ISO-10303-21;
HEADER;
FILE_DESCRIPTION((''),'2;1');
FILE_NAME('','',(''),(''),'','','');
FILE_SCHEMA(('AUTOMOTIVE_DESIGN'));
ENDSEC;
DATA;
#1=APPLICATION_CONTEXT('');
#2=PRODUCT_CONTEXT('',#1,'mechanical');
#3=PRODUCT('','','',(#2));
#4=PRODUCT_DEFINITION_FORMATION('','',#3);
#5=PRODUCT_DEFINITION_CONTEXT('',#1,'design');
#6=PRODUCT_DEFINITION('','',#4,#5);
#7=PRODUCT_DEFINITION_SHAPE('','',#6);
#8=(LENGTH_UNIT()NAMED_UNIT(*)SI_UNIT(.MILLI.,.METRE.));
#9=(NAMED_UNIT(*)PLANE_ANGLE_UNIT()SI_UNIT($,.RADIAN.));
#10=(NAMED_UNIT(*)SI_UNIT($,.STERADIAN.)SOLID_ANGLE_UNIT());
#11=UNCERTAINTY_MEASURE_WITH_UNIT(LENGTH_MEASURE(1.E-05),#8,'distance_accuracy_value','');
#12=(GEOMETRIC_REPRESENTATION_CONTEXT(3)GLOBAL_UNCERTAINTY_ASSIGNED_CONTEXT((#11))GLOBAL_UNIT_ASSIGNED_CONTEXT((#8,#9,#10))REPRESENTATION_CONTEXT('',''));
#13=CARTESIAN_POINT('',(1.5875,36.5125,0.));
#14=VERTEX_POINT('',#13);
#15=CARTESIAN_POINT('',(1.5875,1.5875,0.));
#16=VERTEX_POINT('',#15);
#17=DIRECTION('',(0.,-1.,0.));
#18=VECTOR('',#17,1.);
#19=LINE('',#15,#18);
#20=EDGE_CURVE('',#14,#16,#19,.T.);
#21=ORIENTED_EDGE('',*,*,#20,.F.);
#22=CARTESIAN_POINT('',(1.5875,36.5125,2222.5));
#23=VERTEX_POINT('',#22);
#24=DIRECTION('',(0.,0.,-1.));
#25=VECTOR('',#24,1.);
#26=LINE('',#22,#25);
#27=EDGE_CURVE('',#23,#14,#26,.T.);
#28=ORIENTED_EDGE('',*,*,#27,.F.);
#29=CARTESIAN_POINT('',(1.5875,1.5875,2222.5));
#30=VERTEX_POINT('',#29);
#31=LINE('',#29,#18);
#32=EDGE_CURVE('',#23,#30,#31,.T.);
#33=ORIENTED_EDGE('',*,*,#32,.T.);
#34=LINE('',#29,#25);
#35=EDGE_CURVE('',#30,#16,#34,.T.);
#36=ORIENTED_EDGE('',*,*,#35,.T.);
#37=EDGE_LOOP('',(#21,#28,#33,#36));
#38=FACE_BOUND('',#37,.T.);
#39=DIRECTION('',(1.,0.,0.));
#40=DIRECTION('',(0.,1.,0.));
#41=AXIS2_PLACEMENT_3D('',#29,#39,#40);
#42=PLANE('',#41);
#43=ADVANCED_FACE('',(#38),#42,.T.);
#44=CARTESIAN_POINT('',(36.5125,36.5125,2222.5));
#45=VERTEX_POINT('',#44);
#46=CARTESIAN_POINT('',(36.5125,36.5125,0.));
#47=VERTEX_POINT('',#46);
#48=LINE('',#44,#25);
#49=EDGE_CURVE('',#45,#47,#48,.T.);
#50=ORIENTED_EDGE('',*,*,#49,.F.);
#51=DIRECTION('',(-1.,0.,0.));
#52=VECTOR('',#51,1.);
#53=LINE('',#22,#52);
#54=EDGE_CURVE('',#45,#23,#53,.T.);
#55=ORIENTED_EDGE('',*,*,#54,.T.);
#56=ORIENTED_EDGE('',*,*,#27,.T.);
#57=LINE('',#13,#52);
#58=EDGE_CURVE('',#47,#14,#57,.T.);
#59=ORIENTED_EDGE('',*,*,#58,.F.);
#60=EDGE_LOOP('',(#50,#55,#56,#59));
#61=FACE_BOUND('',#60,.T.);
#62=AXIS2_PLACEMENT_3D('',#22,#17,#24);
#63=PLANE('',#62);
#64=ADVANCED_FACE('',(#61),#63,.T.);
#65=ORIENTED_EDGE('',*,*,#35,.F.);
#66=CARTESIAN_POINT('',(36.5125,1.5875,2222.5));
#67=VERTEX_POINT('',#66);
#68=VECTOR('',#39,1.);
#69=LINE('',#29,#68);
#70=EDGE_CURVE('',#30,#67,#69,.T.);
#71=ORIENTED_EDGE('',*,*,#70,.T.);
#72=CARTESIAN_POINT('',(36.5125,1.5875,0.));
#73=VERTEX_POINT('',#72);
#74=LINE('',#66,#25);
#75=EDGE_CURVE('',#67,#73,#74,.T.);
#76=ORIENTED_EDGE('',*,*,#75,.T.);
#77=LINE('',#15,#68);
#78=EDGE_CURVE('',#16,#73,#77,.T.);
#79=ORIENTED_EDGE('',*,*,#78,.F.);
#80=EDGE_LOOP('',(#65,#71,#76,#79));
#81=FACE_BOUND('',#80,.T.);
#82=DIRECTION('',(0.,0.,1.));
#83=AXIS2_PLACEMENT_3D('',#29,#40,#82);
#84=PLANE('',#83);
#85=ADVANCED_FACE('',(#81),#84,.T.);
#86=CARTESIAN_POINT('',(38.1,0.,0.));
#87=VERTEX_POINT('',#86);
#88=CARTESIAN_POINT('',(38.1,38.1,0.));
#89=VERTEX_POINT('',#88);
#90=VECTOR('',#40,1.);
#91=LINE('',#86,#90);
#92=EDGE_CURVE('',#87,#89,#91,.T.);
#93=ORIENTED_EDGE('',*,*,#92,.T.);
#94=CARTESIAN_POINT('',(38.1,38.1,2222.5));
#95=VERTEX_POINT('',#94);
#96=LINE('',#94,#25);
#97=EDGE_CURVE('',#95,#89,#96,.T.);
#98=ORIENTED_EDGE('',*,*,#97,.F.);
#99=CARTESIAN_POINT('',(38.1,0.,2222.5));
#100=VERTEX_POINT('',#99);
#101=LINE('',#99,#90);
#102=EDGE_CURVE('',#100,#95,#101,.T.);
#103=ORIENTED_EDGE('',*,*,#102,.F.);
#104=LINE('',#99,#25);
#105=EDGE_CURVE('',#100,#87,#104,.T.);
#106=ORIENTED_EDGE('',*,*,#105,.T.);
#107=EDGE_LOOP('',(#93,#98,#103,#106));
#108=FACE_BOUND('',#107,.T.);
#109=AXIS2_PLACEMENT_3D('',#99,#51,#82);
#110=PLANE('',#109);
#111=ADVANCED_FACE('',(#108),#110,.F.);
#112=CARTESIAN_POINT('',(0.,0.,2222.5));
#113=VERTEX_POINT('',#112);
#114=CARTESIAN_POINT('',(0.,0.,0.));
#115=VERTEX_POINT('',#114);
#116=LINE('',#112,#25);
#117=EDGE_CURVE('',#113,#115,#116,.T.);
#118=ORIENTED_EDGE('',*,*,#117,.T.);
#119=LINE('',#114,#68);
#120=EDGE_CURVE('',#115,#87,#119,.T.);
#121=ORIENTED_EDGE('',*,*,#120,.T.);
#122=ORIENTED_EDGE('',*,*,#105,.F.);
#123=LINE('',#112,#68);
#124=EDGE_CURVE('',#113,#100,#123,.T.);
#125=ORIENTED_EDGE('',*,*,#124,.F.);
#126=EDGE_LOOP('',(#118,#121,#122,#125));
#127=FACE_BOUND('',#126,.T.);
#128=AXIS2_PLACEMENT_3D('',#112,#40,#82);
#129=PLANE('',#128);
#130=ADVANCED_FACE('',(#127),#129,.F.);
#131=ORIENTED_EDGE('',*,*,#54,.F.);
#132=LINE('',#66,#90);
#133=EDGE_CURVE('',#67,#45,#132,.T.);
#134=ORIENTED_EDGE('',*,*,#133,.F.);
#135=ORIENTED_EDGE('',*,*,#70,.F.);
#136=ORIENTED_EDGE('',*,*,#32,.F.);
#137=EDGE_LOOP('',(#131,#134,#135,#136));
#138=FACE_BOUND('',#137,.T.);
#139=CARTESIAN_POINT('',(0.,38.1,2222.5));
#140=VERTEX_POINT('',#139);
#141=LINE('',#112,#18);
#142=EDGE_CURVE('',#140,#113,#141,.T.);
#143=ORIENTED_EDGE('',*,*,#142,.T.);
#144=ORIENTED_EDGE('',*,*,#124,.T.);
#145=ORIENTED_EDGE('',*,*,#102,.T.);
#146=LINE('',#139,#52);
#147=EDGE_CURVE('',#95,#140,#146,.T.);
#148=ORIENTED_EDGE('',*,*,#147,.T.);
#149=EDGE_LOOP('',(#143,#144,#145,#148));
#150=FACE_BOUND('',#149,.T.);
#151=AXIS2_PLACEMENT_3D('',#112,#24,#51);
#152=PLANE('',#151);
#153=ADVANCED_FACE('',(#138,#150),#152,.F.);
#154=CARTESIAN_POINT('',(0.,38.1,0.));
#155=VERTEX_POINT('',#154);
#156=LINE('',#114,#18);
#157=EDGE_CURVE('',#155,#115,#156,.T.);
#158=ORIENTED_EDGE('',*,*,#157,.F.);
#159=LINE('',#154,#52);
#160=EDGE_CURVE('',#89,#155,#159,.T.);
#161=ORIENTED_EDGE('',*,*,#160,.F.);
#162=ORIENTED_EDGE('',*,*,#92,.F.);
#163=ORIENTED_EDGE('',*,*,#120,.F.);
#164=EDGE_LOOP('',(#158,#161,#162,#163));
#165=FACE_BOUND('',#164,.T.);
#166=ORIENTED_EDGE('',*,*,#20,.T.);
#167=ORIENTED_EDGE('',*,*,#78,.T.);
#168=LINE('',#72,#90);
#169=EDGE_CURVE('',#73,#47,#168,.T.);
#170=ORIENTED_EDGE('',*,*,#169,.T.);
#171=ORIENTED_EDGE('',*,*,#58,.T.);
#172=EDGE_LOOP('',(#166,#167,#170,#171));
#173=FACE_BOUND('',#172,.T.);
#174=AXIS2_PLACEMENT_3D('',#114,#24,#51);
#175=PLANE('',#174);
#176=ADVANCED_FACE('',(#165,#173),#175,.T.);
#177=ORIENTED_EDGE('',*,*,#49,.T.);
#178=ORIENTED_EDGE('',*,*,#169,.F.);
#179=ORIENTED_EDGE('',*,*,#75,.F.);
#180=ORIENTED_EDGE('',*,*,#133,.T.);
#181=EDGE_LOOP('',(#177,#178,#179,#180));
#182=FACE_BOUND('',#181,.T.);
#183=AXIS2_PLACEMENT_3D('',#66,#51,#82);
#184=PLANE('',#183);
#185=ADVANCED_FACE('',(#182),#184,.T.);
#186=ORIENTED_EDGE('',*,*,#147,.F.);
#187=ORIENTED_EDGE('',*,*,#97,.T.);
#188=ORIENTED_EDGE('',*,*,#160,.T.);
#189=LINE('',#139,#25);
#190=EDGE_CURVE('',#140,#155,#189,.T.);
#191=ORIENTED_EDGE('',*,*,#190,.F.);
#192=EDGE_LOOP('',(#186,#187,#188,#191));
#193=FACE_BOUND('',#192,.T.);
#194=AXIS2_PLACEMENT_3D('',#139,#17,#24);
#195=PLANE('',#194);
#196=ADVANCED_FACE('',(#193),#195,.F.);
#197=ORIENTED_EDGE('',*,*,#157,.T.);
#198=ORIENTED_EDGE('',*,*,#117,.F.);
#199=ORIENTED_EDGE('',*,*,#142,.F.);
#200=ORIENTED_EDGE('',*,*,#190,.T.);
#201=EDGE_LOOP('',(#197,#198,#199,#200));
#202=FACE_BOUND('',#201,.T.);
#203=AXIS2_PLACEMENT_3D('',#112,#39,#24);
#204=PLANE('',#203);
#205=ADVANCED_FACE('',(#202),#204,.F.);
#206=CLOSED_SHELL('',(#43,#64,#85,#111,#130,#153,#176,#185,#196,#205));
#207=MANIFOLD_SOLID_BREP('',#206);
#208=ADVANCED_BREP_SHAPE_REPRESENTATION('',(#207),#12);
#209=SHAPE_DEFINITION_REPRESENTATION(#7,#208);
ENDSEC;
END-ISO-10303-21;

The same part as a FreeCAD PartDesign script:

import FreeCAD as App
import Part
import Sketcher
Q = App.Units.Quantity


def add_polygon(sketch, points):
    """Adds a closed chain of lines whose ends are joined by coincident constraints."""
    first, n = sketch.GeometryCount, len(points)
    for a, b in zip(points, points[1:] + points[:1]):
        sketch.addGeometry(Part.LineSegment(App.Vector(*a, 0), App.Vector(*b, 0)), False)
    for i in range(n):
        sketch.addConstraint(Sketcher.Constraint("Coincident", first + i, 2, first + (i + 1) % n, 1))

doc = App.newDocument("Part")
body = doc.addObject("PartDesign::Body", "Body")

sketch1 = doc.addObject("Sketcher::SketchObject", "Sketch")
body.addObject(sketch1)
sketch1.AttachmentSupport = (doc.XY_Plane, [""])
sketch1.MapMode = "FlatFace"
add_polygon(sketch1, [(0, 38), (0, 0), (38, 0), (38, 38)])
add_polygon(sketch1, [(37, 2), (2, 2), (2, 37), (37, 37)])
sketch1.addConstraint([
    Sketcher.Constraint("Vertical", 0),
    Sketcher.Constraint("Horizontal", 1),
    Sketcher.Constraint("Vertical", 2),
    Sketcher.Constraint("Horizontal", 3),
    Sketcher.Constraint("Horizontal", 4),
    Sketcher.Constraint("Vertical", 5),
    Sketcher.Constraint("Horizontal", 6),
    Sketcher.Constraint("Vertical", 7),
    Sketcher.Constraint("Coincident", 0, 2, -1, 1),
    Sketcher.Constraint("Equal", 3, 0),
    Sketcher.Constraint("Equal", 6, 5),
    Sketcher.Constraint("DistanceX", 1, 1, 1, 2, Q("1.5 in")),
    Sketcher.Constraint("DistanceX", 4, 2, 4, 1, Q("1.375 in")),
    Sketcher.Constraint("DistanceX", -1, 1, 4, 2, Q("0.0625 in")),
    Sketcher.Constraint("DistanceY", -1, 1, 4, 2, Q("0.0625 in")),
])
pad1 = doc.addObject("PartDesign::Pad", "Pad")
body.addObject(pad1)
pad1.Profile = sketch1
pad1.Length = Q("87.5 in")

doc.recompute()
